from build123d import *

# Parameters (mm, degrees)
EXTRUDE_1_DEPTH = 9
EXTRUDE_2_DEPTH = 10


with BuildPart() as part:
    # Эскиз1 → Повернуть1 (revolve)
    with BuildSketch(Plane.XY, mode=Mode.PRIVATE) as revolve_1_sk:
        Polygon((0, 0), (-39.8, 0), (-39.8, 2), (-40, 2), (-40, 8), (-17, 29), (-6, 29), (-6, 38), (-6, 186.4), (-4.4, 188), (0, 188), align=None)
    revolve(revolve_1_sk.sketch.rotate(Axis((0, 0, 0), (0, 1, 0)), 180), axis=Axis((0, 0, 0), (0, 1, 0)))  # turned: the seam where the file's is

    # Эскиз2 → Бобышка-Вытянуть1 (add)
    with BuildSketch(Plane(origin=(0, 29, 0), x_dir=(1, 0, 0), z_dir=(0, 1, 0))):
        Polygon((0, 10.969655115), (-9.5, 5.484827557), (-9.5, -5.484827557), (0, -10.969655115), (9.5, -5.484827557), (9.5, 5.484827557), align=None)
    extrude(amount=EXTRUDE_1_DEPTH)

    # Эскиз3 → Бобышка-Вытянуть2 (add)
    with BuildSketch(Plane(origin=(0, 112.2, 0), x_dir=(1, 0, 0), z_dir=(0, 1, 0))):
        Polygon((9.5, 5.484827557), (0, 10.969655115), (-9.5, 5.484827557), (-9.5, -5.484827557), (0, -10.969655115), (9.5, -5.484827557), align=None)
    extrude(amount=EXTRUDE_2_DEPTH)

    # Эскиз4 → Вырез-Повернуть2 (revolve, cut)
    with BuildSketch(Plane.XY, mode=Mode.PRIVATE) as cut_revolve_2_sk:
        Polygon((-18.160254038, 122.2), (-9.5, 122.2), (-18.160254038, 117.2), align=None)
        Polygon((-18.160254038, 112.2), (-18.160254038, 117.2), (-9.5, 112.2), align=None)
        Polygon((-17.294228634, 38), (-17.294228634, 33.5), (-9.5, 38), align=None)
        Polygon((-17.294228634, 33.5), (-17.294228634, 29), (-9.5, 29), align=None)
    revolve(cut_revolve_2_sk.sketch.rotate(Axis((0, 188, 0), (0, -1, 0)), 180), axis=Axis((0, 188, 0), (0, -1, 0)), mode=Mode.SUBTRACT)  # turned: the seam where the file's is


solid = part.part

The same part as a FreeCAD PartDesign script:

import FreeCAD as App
import Part
import Sketcher
from FreeCAD import Vector
Q = App.Units.Quantity


def add_polygon(sketch, points):
    """Adds a closed chain of lines whose ends are joined by coincident constraints."""
    first, n = sketch.GeometryCount, len(points)
    for a, b in zip(points, points[1:] + points[:1]):
        sketch.addGeometry(Part.LineSegment(App.Vector(*a, 0), App.Vector(*b, 0)), False)
    for i in range(n):
        sketch.addConstraint(Sketcher.Constraint("Coincident", first + i, 2, first + (i + 1) % n, 1))

doc = App.newDocument("Part")
body = doc.addObject("PartDesign::Body", "Body")

# Sketch on XY plane
sketch1 = body.newObject("Sketcher::SketchObject", "Sketch")
sketch1.AttachmentSupport = (doc.getObject("XY_Plane"), [""])
sketch1.MapMode = "FlatFace"
add_polygon(sketch1, [(-39.8, 0), (0, 0), (0, 188), (-4.4, 188), (-6, 186.4), (-6, 29), (-17, 29), (-40, 8), (-40, 2), (-39.8, 2)])  # lines 0-9
sketch1.addConstraint(Sketcher.Constraint("Horizontal", 0))
sketch1.addConstraint(Sketcher.Constraint("Vertical", 1))
sketch1.addConstraint(Sketcher.Constraint("Horizontal", 2))
sketch1.addConstraint(Sketcher.Constraint("Vertical", 4))
sketch1.addConstraint(Sketcher.Constraint("Horizontal", 5))
sketch1.addConstraint(Sketcher.Constraint("Vertical", 7))
sketch1.addConstraint(Sketcher.Constraint("Horizontal", 8))
sketch1.addConstraint(Sketcher.Constraint("Vertical", 9))
sketch1.addConstraint(Sketcher.Constraint("Coincident", 0, 2, -1, 1))
sketch1.addConstraint(Sketcher.Constraint("DistanceX", 5, 2, 5, 1, 11.0))
sketch1.addConstraint(Sketcher.Constraint("DistanceY", 1, 1, 1, 2, 188.0))
sketch1.addConstraint(Sketcher.Constraint("DistanceY", 7, 2, 7, 1, 6.0))
sketch1.addConstraint(Sketcher.Constraint("DistanceY", 9, 2, 9, 1, 2.0))
sketch1.addConstraint(Sketcher.Constraint("Angle", 3, Q("-135 deg")))
sketch1.addConstraint(Sketcher.Constraint("DistanceX", 0, 1, 0, 2, 39.8))
sketch1.addConstraint(Sketcher.Constraint("DistanceX", 2, 2, 2, 1, 4.4))
sketch1.addConstraint(Sketcher.Constraint("DistanceX", 8, 1, 8, 2, 0.2))
sketch1.addConstraint(Sketcher.Constraint("DistanceY", 4, 2, 4, 1, 157.4))
sketch1.addConstraint(Sketcher.Constraint("DistanceX", 3, 2, -1, 1, 6.0))
revolution = body.newObject("PartDesign::Revolution", "Revolution")
revolution.Profile = sketch1
revolution.ReferenceAxis = (sketch1, ["V_Axis"])
revolution.Angle = 360

# Sketch on XZ plane
sketch2 = body.newObject("Sketcher::SketchObject", "Sketch001")
sketch2.AttachmentSupport = (doc.getObject("XZ_Plane"), [""])
sketch2.MapMode = "FlatFace"
sketch2.AttachmentOffset = App.Placement(Vector(0, 0, -29), App.Rotation())
add_polygon(sketch2, [(0, -10.969655), (-9.5, -5.484828), (-9.5, 5.484828), (0, 10.969655), (9.5, 5.484828), (9.5, -5.484828)])  # lines 0-5
sketch2.addConstraint(Sketcher.Constraint("Vertical", 1))
sketch2.addConstraint(Sketcher.Constraint("Vertical", 4))
sketch2.addConstraint(Sketcher.Constraint("Symmetric", 0, 2, 3, 2, -1, 1))
sketch2.addConstraint(Sketcher.Constraint("Symmetric", 2, 2, 5, 2, -1, 1))
sketch2.addConstraint(Sketcher.Constraint("PointOnObject", 2, 2, -2))
sketch2.addConstraint(Sketcher.Constraint("Parallel", 2, 5))
sketch2.addConstraint(Sketcher.Constraint("Horizontal", 1, 2, 3, 2))
sketch2.addConstraint(Sketcher.Constraint("Angle", 0, Q("150 deg")))
sketch2.addConstraint(Sketcher.Constraint("DistanceX", 1, 2, 3, 2, 19.0))
sketch2.addConstraint(Sketcher.Constraint("DistanceY", 1, 1, 1, 2, 10.969655))
pad1 = body.newObject("PartDesign::Pad", "Pad")
pad1.Profile = sketch2
pad1.Length = 9
pad1.Reversed = True

# Sketch on XZ plane
sketch3 = body.newObject("Sketcher::SketchObject", "Sketch002")
sketch3.AttachmentSupport = (doc.getObject("XZ_Plane"), [""])
sketch3.MapMode = "FlatFace"
sketch3.AttachmentOffset = App.Placement(Vector(0, 0, -112.2), App.Rotation())
add_polygon(sketch3, [(9.5, -5.484828), (0, -10.969655), (-9.5, -5.484828), (-9.5, 5.484828), (0, 10.969655), (9.5, 5.484828)])  # lines 0-5
sketch3.addConstraint(Sketcher.Constraint("Vertical", 2))
sketch3.addConstraint(Sketcher.Constraint("Vertical", 5))
sketch3.addConstraint(Sketcher.Constraint("Symmetric", 0, 2, 3, 2, -1, 1))
sketch3.addConstraint(Sketcher.Constraint("Symmetric", 1, 2, 4, 2, -1, 1))
sketch3.addConstraint(Sketcher.Constraint("PointOnObject", 0, 2, -2))
sketch3.addConstraint(Sketcher.Constraint("Parallel", 0, 3))
sketch3.addConstraint(Sketcher.Constraint("Horizontal", 2, 2, 4, 2))
sketch3.addConstraint(Sketcher.Constraint("Angle", 0, Q("-150 deg")))
sketch3.addConstraint(Sketcher.Constraint("DistanceX", 2, 2, 4, 2, 19.0))
sketch3.addConstraint(Sketcher.Constraint("DistanceY", 2, 1, 2, 2, 10.969655))
pad2 = body.newObject("PartDesign::Pad", "Pad001")
pad2.Profile = sketch3
pad2.Length = 10
pad2.Reversed = True

# Sketch on XY plane
sketch4 = body.newObject("Sketcher::SketchObject", "Sketch003")
sketch4.AttachmentSupport = (doc.getObject("XY_Plane"), [""])
sketch4.MapMode = "FlatFace"
add_polygon(sketch4, [(-9.5, 122.2), (-18.160254, 122.2), (-18.160254, 117.2)])  # lines 0-2
add_polygon(sketch4, [(-18.160254, 117.2), (-18.160254, 112.2), (-9.5, 112.2)])  # lines 3-5
add_polygon(sketch4, [(-17.294229, 38), (-17.294229, 33.5), (-9.5, 38)])  # lines 6-8
add_polygon(sketch4, [(-17.294229, 33.5), (-17.294229, 29), (-9.5, 29)])  # lines 9-11
sketch4.addConstraint(Sketcher.Constraint("Horizontal", 0))
sketch4.addConstraint(Sketcher.Constraint("Vertical", 1))
sketch4.addConstraint(Sketcher.Constraint("Vertical", 3))
sketch4.addConstraint(Sketcher.Constraint("Horizontal", 4))
sketch4.addConstraint(Sketcher.Constraint("Vertical", 6))
sketch4.addConstraint(Sketcher.Constraint("Horizontal", 8))
sketch4.addConstraint(Sketcher.Constraint("Vertical", 9))
sketch4.addConstraint(Sketcher.Constraint("Horizontal", 10))
sketch4.addConstraint(Sketcher.Constraint("Coincident", 5, 2, 1, 2))
sketch4.addConstraint(Sketcher.Constraint("Coincident", 11, 2, 6, 2))
sketch4.addConstraint(Sketcher.Constraint("Parallel", 2, 7))
sketch4.addConstraint(Sketcher.Constraint("Parallel", 5, 11))
sketch4.addConstraint(Sketcher.Constraint("Vertical", 2, 2, 4, 2))
sketch4.addConstraint(Sketcher.Constraint("Vertical", 4, 2, 7, 2))
sketch4.addConstraint(Sketcher.Constraint("Vertical", 7, 2, 10, 2))
sketch4.addConstraint(Sketcher.Constraint("Equal", 1, 3))
sketch4.addConstraint(Sketcher.Constraint("DistanceY", 1, 2, 1, 1, 5.0))
sketch4.addConstraint(Sketcher.Constraint("Angle", 2, Q("30 deg")))
sketch4.addConstraint(Sketcher.Constraint("Distance", 7, 9.0))
sketch4.addConstraint(Sketcher.Constraint("DistanceY", -1, 1, 7, 2, 38.0))
sketch4.addConstraint(Sketcher.Constraint("DistanceY", -1, 1, 0, 2, 122.2))
sketch4.addConstraint(Sketcher.Constraint("DistanceX", 2, 2, -1, 1, 9.5))
groove = body.newObject("PartDesign::Groove", "Groove")
groove.Profile = sketch4
groove.ReferenceAxis = (sketch4, ["V_Axis"])
groove.Angle = 360

doc.recompute()
